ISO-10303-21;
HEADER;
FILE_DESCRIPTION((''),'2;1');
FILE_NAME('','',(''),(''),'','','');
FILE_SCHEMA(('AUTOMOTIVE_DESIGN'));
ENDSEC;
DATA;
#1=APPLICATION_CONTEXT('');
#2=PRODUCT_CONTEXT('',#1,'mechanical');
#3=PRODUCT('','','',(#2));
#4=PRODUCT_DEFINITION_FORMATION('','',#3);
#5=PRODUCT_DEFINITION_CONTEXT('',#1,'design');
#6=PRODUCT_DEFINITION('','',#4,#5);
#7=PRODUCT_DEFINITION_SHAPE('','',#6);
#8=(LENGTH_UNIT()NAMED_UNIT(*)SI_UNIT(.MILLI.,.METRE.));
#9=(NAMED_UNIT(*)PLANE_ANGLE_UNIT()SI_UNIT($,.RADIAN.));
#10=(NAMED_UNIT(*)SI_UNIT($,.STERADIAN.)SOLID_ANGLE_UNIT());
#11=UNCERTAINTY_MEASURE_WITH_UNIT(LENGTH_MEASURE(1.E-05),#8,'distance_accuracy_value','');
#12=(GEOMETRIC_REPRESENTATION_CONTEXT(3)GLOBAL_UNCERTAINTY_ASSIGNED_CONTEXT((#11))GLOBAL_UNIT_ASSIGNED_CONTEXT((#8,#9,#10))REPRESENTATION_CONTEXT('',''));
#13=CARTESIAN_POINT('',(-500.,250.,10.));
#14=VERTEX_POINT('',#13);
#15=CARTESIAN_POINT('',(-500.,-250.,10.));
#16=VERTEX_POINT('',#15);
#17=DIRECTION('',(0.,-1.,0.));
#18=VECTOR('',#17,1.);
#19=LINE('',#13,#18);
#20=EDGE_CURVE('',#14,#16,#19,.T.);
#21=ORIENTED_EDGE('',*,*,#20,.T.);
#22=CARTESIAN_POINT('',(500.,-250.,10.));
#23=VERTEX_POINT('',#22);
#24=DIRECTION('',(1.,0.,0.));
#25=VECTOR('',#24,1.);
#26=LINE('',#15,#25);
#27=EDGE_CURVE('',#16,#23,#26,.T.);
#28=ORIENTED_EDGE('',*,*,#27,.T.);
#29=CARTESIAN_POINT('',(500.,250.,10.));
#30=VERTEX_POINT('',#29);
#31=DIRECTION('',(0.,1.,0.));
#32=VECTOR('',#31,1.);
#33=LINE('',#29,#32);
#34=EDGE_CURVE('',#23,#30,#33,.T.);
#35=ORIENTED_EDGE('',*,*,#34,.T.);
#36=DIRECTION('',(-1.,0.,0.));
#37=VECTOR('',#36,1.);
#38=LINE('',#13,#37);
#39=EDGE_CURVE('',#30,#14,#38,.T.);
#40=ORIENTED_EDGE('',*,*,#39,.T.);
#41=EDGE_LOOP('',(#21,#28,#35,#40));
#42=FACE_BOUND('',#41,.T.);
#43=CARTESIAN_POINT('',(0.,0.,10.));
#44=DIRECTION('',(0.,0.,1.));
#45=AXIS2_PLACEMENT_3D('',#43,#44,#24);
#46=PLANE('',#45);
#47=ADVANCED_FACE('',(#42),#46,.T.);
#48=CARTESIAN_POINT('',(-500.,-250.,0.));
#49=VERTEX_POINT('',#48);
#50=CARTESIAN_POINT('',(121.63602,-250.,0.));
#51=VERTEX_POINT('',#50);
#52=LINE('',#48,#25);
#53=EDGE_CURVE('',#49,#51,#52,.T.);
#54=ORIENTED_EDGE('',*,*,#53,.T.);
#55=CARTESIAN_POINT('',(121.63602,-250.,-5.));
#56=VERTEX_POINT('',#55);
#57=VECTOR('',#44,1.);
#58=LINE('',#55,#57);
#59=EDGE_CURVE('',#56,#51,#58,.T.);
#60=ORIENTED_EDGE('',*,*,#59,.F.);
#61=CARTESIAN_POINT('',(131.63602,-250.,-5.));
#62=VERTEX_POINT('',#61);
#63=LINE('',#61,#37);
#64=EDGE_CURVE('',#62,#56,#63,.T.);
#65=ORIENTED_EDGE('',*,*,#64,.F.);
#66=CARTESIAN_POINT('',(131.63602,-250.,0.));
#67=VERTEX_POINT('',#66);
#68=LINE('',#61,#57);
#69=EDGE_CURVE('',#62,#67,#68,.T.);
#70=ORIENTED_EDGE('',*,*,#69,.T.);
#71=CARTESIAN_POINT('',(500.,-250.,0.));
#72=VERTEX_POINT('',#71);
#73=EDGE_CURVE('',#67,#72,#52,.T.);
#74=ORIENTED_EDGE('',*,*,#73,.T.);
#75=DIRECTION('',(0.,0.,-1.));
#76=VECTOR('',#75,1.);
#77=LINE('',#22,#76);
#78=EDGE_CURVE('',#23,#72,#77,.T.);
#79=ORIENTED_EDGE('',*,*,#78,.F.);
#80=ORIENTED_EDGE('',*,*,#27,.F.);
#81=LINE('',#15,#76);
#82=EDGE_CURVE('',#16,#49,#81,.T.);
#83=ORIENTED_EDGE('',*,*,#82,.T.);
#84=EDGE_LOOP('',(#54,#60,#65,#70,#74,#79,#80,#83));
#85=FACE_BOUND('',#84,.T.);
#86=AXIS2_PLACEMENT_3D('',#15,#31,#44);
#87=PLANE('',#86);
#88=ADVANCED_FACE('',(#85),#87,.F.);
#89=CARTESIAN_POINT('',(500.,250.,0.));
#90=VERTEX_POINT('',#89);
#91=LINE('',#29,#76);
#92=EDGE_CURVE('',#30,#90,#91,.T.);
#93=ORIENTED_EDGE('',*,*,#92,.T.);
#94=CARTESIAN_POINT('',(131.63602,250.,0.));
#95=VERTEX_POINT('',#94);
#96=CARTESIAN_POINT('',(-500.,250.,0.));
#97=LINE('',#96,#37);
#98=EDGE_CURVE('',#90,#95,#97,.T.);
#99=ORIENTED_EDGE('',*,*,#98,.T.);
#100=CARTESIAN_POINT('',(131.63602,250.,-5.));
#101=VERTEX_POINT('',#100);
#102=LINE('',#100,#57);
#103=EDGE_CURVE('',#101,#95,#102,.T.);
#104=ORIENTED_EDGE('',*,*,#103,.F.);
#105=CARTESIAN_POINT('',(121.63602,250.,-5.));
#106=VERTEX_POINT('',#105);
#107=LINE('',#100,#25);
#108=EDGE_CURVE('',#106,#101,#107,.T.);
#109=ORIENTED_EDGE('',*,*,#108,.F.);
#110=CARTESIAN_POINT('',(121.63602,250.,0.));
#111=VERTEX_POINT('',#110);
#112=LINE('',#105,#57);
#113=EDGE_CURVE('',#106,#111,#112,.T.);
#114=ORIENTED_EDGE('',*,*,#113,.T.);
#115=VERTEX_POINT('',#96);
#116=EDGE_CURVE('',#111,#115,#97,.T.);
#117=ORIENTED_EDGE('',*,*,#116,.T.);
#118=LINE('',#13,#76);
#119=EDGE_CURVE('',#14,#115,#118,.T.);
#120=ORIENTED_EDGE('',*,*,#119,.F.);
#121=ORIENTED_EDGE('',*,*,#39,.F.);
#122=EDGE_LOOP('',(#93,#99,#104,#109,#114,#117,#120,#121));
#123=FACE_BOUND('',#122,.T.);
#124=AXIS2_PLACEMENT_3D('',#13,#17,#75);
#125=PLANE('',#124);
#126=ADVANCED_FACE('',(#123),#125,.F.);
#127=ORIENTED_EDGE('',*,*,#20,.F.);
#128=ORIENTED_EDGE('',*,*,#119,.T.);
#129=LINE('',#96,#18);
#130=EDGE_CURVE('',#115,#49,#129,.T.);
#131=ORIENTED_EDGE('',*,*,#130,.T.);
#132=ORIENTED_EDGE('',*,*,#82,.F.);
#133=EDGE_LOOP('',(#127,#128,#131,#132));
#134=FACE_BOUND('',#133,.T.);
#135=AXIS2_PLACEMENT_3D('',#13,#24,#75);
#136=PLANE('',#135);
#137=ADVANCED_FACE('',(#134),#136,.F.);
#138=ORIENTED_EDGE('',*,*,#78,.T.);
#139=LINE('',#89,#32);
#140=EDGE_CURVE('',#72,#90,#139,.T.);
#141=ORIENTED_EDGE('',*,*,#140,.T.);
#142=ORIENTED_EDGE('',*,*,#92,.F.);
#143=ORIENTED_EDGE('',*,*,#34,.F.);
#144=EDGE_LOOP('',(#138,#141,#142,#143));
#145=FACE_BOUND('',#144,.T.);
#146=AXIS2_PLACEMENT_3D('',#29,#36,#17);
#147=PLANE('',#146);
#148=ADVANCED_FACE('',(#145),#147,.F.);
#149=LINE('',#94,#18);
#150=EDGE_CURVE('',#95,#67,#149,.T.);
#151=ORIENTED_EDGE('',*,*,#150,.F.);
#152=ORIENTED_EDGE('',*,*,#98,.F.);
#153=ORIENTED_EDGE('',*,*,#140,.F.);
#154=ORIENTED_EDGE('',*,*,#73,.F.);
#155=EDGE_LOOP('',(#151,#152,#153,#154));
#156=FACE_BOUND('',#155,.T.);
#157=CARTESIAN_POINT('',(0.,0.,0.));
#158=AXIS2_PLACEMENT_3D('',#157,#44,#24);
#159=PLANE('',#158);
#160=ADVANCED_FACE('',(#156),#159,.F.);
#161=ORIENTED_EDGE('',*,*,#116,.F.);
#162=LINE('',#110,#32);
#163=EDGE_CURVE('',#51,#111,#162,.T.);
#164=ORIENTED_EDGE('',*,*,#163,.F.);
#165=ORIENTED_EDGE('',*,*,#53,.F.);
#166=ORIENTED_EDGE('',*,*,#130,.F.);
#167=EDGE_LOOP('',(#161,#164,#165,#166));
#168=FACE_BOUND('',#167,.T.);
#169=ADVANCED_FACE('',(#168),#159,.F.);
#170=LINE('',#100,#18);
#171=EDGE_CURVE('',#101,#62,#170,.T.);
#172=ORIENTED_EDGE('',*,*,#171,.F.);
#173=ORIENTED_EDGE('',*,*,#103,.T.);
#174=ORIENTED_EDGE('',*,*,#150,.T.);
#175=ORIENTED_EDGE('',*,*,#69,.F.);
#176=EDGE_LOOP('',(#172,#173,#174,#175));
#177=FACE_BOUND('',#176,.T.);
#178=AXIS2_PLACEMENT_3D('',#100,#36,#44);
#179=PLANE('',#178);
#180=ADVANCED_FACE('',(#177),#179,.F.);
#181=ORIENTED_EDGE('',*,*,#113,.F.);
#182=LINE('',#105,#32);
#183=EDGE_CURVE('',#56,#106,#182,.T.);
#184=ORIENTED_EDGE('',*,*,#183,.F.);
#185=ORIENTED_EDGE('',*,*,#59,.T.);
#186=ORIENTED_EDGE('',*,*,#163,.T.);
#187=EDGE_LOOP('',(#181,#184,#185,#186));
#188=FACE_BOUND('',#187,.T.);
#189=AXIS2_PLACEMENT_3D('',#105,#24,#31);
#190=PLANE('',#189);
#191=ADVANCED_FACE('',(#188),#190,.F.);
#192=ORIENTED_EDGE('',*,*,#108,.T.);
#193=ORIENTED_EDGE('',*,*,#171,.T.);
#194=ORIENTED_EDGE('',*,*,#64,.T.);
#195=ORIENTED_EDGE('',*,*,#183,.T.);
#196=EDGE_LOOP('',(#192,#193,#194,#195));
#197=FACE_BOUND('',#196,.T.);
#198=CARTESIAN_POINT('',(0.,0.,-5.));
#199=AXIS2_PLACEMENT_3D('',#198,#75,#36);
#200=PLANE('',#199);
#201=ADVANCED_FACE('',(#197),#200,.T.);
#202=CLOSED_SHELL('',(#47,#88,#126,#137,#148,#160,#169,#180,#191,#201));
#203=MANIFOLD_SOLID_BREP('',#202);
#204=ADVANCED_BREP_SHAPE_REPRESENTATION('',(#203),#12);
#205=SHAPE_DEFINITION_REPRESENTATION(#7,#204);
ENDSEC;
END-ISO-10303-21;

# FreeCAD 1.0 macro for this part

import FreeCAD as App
import Part
import Sketcher

V = App.Vector

doc = App.newDocument("Part")
params = doc.addObject("Spreadsheet::Sheet", "Params")
for row, (alias, value) in enumerate([
    ("sketch1_width", "1000 mm"),
    ("sketch1_height", "500 mm"),
    ("pad1_length", "10 mm"),
    ("sketch2_width", "10 mm"),
    ("sketch2_height", "500 mm"),
    ("pad2_length", "5 mm"),
], start=1):
    params.set(f"A{row}", alias)
    params.set(f"B{row}", "=" + value)
    params.setAlias(f"B{row}", alias)

body = doc.addObject("PartDesign::Body", "Body")

# Sketch on XY plane
sketch1 = body.newObject("Sketcher::SketchObject", "Sketch")
sketch1.AttachmentSupport = (doc.getObject("XY_Plane"), [""])
sketch1.MapMode = "FlatFace"
sketch1.addGeometry([
    Part.LineSegment(V(-500, 250, 0), V(-500, -250, 0)),
    Part.LineSegment(V(-500, -250, 0), V(500, -250, 0)),
    Part.LineSegment(V(500, -250, 0), V(500, 250, 0)),
    Part.LineSegment(V(500, 250, 0), V(-500, 250, 0)),
], False)
sketch1.addConstraint([
    Sketcher.Constraint("Coincident", 0, 2, 1, 1),
    Sketcher.Constraint("Coincident", 1, 2, 2, 1),
    Sketcher.Constraint("Coincident", 2, 2, 3, 1),
    Sketcher.Constraint("Coincident", 3, 2, 0, 1),
    Sketcher.Constraint("Vertical", 0),
    Sketcher.Constraint("Horizontal", 1),
    Sketcher.Constraint("Vertical", 2),
    Sketcher.Constraint("Horizontal", 3),
    Sketcher.Constraint("Symmetric", 0, 2, 2, 2, -1, 1),
    Sketcher.Constraint("DistanceX", 1, 1, 1, 2, 1000.0),
    Sketcher.Constraint("DistanceY", 0, 2, 0, 1, 500.0),
])
sketch1.setExpression("Constraints[9]", "Params.sketch1_width")
sketch1.setExpression("Constraints[10]", "Params.sketch1_height")
pad1 = body.newObject("PartDesign::Pad", "Pad")
pad1.Profile = sketch1
pad1.setExpression("Length", "Params.pad1_length")

# Sketch on XY plane
sketch2 = body.newObject("Sketcher::SketchObject", "Sketch001")
sketch2.AttachmentSupport = (doc.getObject("XY_Plane"), [""])
sketch2.MapMode = "FlatFace"
sketch2.addGeometry([
    Part.LineSegment(V(131.63602, 250, 0), V(131.63602, -250, 0)),
    Part.LineSegment(V(131.63602, -250, 0), V(121.63602, -250, 0)),
    Part.LineSegment(V(121.63602, -250, 0), V(121.63602, 250, 0)),
    Part.LineSegment(V(121.63602, 250, 0), V(131.63602, 250, 0)),
], False)
sketch2.addConstraint([
    Sketcher.Constraint("Coincident", 0, 2, 1, 1),
    Sketcher.Constraint("Coincident", 1, 2, 2, 1),
    Sketcher.Constraint("Coincident", 2, 2, 3, 1),
    Sketcher.Constraint("Coincident", 3, 2, 0, 1),
    Sketcher.Constraint("Vertical", 0),
    Sketcher.Constraint("Horizontal", 1),
    Sketcher.Constraint("Vertical", 2),
    Sketcher.Constraint("Horizontal", 3),
    Sketcher.Constraint("DistanceX", 1, 2, 1, 1, 10.0),
    Sketcher.Constraint("DistanceY", 0, 2, 0, 1, 500.0),
    Sketcher.Constraint("DistanceY", 0, 2, -1, 1, 250.0),
    Sketcher.Constraint("DistanceX", -1, 1, 0, 2, 131.63602),
])
sketch2.setExpression("Constraints[8]", "Params.sketch2_width")
sketch2.setExpression("Constraints[9]", "Params.sketch2_height")
pad2 = body.newObject("PartDesign::Pad", "Pad001")
pad2.Profile = sketch2
pad2.setExpression("Length", "Params.pad2_length")
pad2.Reversed = True

doc.recompute()
